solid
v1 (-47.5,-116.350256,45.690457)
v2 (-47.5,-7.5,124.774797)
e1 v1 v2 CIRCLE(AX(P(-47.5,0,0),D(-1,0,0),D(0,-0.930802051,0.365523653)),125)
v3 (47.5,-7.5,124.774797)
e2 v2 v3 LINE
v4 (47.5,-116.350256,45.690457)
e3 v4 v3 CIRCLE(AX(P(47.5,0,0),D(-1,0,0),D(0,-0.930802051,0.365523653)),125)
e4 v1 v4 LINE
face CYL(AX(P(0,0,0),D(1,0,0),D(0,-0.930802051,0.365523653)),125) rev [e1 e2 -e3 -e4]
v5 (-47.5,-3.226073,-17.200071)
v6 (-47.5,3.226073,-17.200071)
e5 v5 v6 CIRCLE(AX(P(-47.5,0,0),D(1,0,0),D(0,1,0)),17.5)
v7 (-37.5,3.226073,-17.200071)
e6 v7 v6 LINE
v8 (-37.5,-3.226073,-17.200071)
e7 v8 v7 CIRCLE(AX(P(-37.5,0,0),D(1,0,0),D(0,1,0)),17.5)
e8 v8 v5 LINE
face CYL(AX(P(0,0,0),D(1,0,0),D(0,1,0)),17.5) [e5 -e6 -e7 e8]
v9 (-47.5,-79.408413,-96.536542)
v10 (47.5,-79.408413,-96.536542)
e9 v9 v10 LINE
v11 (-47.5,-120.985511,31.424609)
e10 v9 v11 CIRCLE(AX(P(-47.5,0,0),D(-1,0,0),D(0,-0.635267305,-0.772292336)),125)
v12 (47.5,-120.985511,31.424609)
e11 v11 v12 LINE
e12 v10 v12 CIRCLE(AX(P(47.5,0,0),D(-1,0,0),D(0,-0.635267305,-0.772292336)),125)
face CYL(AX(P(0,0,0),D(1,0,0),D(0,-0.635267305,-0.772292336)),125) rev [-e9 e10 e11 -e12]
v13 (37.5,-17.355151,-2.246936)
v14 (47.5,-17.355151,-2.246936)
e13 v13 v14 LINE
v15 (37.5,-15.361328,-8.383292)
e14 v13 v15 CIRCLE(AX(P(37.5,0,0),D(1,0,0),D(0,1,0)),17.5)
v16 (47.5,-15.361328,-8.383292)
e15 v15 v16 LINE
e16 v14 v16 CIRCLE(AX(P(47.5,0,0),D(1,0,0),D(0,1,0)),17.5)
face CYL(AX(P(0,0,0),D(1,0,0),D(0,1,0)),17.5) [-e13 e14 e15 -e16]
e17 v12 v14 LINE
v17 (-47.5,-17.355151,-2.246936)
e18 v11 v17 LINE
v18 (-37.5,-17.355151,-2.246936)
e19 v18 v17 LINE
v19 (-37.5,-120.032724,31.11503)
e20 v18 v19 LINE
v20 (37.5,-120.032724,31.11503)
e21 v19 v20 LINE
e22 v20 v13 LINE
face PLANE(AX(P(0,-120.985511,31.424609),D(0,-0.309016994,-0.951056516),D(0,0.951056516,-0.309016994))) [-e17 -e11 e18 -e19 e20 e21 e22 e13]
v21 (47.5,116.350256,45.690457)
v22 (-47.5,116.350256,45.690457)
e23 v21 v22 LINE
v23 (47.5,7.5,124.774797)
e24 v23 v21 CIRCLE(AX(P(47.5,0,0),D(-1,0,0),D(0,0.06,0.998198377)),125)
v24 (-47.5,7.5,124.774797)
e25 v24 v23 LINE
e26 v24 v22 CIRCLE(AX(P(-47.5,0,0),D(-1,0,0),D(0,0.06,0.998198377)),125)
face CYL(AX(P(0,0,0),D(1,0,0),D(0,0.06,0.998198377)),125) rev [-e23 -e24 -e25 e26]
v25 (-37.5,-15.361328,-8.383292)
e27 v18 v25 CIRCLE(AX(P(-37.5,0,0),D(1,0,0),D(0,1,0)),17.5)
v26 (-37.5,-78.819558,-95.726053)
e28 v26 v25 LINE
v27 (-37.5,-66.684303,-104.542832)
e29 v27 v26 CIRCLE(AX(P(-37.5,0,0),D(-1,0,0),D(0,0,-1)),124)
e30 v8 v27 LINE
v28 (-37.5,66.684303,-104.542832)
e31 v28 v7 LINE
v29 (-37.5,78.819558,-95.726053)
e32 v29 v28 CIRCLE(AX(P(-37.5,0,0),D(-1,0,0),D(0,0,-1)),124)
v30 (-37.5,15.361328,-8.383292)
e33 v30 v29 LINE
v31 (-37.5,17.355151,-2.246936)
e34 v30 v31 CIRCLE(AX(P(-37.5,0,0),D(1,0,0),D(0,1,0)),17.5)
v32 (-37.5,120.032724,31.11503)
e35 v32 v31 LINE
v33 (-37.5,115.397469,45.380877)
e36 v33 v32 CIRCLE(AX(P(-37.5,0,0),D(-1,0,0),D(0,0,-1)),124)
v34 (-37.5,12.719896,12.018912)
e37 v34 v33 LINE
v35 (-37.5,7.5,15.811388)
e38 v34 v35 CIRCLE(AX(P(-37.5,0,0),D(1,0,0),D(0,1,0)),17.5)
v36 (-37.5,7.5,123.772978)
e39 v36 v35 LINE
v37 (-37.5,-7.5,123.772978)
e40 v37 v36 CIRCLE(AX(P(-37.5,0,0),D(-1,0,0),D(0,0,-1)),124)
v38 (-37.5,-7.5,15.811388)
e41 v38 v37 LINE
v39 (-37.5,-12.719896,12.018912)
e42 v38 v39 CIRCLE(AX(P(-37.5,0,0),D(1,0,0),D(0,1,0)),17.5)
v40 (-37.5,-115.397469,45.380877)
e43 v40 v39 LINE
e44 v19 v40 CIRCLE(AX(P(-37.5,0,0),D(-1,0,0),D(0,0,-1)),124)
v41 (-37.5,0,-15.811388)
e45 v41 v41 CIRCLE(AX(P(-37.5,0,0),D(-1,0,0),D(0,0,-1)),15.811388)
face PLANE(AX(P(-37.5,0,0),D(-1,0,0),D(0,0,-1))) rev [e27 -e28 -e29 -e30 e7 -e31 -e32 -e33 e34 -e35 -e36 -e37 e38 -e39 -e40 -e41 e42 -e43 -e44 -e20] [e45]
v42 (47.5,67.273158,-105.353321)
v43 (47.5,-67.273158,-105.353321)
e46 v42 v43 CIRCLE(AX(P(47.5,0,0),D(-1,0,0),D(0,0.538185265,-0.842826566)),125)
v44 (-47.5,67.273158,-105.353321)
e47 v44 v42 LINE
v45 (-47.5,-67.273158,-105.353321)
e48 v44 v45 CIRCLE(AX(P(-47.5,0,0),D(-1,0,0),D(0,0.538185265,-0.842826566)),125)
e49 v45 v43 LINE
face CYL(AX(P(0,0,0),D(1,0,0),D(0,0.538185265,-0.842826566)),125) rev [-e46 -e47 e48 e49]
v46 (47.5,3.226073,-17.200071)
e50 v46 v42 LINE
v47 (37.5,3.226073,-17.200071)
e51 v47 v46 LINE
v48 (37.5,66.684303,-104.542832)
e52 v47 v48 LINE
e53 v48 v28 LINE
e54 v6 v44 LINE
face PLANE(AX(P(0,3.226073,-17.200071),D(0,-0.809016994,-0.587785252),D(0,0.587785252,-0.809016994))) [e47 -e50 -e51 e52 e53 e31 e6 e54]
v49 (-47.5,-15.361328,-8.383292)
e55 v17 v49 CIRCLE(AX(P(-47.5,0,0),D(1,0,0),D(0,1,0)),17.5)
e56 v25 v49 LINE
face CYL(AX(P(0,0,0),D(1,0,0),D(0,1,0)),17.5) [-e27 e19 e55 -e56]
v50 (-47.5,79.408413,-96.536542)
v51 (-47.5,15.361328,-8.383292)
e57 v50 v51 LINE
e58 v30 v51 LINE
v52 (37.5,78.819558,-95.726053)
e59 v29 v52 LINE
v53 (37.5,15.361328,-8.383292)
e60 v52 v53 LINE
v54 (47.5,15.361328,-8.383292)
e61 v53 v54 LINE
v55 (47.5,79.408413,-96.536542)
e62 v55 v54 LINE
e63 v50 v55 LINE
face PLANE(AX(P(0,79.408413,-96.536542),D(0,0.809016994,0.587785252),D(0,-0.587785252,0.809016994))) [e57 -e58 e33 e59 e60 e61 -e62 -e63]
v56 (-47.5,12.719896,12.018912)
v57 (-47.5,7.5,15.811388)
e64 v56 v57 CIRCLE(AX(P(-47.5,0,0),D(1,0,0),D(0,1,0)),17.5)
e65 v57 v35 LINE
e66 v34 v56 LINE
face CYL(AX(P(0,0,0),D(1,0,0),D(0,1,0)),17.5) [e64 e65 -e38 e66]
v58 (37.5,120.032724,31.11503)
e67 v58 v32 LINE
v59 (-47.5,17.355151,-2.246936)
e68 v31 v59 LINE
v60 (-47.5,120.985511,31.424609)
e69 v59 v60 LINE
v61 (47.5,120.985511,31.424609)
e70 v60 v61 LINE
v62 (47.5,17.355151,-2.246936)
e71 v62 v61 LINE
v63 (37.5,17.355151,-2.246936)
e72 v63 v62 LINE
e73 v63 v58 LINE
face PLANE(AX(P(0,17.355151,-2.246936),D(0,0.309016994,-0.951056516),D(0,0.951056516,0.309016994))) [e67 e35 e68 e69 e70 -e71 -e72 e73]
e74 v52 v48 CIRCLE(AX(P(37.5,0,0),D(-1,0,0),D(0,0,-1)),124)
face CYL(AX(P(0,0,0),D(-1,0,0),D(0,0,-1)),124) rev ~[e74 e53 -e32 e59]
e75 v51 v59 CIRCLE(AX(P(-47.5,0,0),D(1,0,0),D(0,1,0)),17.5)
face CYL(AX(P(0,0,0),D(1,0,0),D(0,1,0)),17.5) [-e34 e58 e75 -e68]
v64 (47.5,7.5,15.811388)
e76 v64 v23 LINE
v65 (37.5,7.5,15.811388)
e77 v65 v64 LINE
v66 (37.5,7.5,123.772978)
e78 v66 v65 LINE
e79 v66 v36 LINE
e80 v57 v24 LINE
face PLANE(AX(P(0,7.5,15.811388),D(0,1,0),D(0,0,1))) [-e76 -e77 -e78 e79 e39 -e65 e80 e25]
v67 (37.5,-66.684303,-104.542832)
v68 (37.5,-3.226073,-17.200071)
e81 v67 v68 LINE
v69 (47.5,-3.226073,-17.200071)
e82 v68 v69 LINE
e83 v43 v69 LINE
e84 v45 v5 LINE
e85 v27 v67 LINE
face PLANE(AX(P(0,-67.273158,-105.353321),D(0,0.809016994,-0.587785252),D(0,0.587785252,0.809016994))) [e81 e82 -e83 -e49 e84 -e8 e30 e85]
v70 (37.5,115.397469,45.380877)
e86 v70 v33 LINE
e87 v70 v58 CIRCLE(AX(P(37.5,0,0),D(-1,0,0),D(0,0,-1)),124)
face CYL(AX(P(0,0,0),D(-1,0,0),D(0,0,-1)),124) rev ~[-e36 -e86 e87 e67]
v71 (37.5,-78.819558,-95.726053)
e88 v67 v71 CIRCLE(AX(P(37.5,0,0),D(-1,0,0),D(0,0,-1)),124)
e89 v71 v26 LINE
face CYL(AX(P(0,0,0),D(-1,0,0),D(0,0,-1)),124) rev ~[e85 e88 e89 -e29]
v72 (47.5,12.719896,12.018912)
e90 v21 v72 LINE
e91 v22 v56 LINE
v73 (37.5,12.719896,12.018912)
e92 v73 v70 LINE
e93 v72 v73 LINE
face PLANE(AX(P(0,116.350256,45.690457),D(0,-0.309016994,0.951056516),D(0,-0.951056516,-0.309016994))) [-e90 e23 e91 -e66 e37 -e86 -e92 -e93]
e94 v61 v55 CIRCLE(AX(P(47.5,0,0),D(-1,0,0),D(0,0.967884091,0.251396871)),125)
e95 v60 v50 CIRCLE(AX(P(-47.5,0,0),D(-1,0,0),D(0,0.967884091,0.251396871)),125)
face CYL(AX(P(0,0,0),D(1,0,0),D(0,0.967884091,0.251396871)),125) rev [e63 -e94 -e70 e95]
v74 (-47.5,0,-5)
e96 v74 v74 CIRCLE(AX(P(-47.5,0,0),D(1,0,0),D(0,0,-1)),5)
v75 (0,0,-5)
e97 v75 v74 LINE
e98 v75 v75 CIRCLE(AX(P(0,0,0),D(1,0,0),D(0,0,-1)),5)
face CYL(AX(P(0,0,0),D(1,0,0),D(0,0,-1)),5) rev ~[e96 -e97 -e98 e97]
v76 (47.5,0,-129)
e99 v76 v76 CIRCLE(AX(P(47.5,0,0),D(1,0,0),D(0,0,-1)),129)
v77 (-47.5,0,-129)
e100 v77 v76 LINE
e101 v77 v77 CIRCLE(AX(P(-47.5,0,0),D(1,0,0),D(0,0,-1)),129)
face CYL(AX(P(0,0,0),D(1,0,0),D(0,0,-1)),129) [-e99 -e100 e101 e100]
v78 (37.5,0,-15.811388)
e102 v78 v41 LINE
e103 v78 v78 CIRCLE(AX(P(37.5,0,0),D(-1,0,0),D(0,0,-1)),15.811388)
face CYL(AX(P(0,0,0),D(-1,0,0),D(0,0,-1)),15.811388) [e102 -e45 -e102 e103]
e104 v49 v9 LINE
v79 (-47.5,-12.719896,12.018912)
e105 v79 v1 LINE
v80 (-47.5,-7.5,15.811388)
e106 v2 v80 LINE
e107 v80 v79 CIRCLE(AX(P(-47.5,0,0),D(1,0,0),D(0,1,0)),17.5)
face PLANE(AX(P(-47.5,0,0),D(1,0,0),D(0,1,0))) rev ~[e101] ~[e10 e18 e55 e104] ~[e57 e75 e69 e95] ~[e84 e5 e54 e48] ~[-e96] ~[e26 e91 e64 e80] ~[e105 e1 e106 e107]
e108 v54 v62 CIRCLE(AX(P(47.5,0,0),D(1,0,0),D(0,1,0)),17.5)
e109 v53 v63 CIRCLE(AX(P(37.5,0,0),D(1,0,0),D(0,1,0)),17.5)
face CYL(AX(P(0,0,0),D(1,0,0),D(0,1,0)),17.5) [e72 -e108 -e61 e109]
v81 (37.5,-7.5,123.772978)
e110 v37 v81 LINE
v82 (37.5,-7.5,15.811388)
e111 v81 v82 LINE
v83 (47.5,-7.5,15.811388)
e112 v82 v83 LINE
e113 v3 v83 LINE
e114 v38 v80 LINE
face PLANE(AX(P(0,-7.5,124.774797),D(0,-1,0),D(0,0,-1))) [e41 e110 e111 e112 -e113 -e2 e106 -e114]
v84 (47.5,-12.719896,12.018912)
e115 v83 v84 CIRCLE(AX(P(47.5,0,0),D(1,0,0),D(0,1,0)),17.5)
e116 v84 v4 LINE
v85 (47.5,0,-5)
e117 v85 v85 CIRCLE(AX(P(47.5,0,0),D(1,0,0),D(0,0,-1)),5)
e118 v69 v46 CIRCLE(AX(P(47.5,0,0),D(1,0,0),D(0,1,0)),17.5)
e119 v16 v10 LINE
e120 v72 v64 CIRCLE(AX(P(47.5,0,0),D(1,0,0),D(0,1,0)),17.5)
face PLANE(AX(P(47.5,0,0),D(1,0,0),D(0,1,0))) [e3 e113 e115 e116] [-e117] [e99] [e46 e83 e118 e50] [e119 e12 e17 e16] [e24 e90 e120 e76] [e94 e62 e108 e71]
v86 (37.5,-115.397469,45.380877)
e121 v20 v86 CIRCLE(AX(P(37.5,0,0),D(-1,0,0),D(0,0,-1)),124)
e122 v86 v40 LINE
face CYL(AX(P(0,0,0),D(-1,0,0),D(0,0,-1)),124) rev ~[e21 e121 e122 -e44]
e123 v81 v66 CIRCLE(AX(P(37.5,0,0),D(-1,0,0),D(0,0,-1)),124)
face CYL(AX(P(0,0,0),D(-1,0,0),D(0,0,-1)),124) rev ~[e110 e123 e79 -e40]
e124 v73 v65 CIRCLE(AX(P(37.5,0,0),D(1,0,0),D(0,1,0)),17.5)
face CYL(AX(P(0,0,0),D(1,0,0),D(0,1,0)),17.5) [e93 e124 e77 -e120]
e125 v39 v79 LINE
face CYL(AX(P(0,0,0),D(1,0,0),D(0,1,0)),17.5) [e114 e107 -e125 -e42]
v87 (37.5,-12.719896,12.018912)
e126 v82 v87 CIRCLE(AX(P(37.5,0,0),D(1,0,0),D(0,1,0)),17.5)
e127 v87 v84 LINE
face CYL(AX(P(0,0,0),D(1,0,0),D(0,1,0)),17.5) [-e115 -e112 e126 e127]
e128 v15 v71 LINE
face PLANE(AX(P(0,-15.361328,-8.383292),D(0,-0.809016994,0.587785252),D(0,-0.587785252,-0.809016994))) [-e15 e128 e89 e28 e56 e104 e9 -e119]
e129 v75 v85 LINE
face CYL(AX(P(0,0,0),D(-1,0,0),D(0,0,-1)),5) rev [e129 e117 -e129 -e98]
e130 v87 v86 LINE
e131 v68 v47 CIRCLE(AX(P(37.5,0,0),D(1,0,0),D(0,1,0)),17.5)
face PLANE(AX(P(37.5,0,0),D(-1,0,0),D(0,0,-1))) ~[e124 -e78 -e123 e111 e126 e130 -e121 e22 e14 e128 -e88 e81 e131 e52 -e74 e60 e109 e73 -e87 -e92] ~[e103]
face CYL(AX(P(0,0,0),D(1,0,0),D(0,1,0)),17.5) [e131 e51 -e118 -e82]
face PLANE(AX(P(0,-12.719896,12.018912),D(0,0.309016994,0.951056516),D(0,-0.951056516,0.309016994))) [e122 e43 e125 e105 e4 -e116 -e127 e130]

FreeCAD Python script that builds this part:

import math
import FreeCAD as App
import Part
import Sketcher
Q = App.Units.Quantity

doc = App.newDocument("Part")
body = doc.addObject("PartDesign::Body", "Body")

sketch1 = doc.addObject("Sketcher::SketchObject", "Sketch")
body.addObject(sketch1)
sketch1.AttachmentSupport = (doc.YZ_Plane, [""])
sketch1.MapMode = "FlatFace"
sketch1.addGeometry([
    Part.Circle(App.Vector(0, 0, 0), App.Vector(0, 0, 1), 129),
    Part.ArcOfCircle(Part.Circle(App.Vector(0, 0, 0), App.Vector(0, 0, 1), 125), math.radians(93.439813), math.radians(158.560187)),
    Part.LineSegment(App.Vector(-7.5, 124.774797, 0), App.Vector(-7.5, 15.811388, 0)),
    Part.ArcOfCircle(Part.Circle(App.Vector(0, 0, 0), App.Vector(0, 0, 1), 17.5), math.radians(115.376934), math.radians(136.623066)),
    Part.LineSegment(App.Vector(-12.719896, 12.018912, 0), App.Vector(-116.350256, 45.690457, 0)),
    Part.LineSegment(App.Vector(-120.985511, 31.424609, 0), App.Vector(-17.355151, -2.246936, 0)),
    Part.ArcOfCircle(Part.Circle(App.Vector(0, 0, 0), App.Vector(0, 0, 1), 17.5), math.radians(-172.623066), math.radians(-151.376934)),
    Part.LineSegment(App.Vector(-15.361328, -8.383292, 0), App.Vector(-79.408413, -96.536542, 0)),
    Part.ArcOfCircle(Part.Circle(App.Vector(0, 0, 0), App.Vector(0, 0, 1), 125), math.radians(165.439813), math.radians(230.560187)),
    Part.LineSegment(App.Vector(-67.273158, -105.353321, 0), App.Vector(-3.226073, -17.200071, 0)),
    Part.ArcOfCircle(Part.Circle(App.Vector(0, 0, 0), App.Vector(0, 0, 1), 17.5), math.radians(-100.623066), math.radians(-79.376934)),
    Part.LineSegment(App.Vector(3.226073, -17.200071, 0), App.Vector(67.273158, -105.353321, 0)),
    Part.ArcOfCircle(Part.Circle(App.Vector(0, 0, 0), App.Vector(0, 0, 1), 125), math.radians(-122.560187), math.radians(-57.439813)),
    Part.LineSegment(App.Vector(79.408413, -96.536542, 0), App.Vector(15.361328, -8.383292, 0)),
    Part.ArcOfCircle(Part.Circle(App.Vector(0, 0, 0), App.Vector(0, 0, 1), 17.5), math.radians(-28.623066), math.radians(-7.376934)),
    Part.LineSegment(App.Vector(17.355151, -2.246936, 0), App.Vector(120.985511, 31.424609, 0)),
    Part.ArcOfCircle(Part.Circle(App.Vector(0, 0, 0), App.Vector(0, 0, 1), 125), math.radians(-50.560187), math.radians(14.560187)),
    Part.LineSegment(App.Vector(116.350256, 45.690457, 0), App.Vector(12.719896, 12.018912, 0)),
    Part.ArcOfCircle(Part.Circle(App.Vector(0, 0, 0), App.Vector(0, 0, 1), 17.5), math.radians(43.376934), math.radians(64.623066)),
    Part.LineSegment(App.Vector(7.5, 15.811388, 0), App.Vector(7.5, 124.774797, 0)),
    Part.ArcOfCircle(Part.Circle(App.Vector(0, 0, 0), App.Vector(0, 0, 1), 125), math.radians(21.439813), math.radians(86.560187)),
    Part.Circle(App.Vector(0, 0, 0), App.Vector(0, 0, 1), 5),
], False)
sketch1.addConstraint([
    Sketcher.Constraint("Coincident", 1, 1, 2, 1),
    Sketcher.Constraint("Coincident", 2, 2, 3, 1),
    Sketcher.Constraint("Coincident", 3, 2, 4, 1),
    Sketcher.Constraint("Coincident", 4, 2, 1, 2),
    Sketcher.Constraint("Coincident", 5, 2, 6, 1),
    Sketcher.Constraint("Coincident", 6, 2, 7, 1),
    Sketcher.Constraint("Coincident", 7, 2, 8, 2),
    Sketcher.Constraint("Coincident", 8, 1, 5, 1),
    Sketcher.Constraint("Coincident", 9, 2, 10, 1),
    Sketcher.Constraint("Coincident", 10, 2, 11, 1),
    Sketcher.Constraint("Coincident", 11, 2, 12, 2),
    Sketcher.Constraint("Coincident", 12, 1, 9, 1),
    Sketcher.Constraint("Coincident", 13, 2, 14, 1),
    Sketcher.Constraint("Coincident", 14, 2, 15, 1),
    Sketcher.Constraint("Coincident", 15, 2, 16, 2),
    Sketcher.Constraint("Coincident", 16, 1, 13, 1),
    Sketcher.Constraint("Coincident", 17, 2, 18, 1),
    Sketcher.Constraint("Coincident", 18, 2, 19, 1),
    Sketcher.Constraint("Coincident", 19, 2, 20, 2),
    Sketcher.Constraint("Coincident", 20, 1, 17, 1),
    Sketcher.Constraint("Vertical", 2),
    Sketcher.Constraint("Vertical", 19),
    Sketcher.Constraint("Coincident", 0, 3, -1, 1),
    Sketcher.Constraint("Coincident", 1, 3, -1, 1),
    Sketcher.Constraint("Coincident", 3, 3, -1, 1),
    Sketcher.Constraint("Coincident", 6, 3, -1, 1),
    Sketcher.Constraint("Coincident", 8, 3, -1, 1),
    Sketcher.Constraint("Coincident", 10, 3, -1, 1),
    Sketcher.Constraint("Coincident", 12, 3, -1, 1),
    Sketcher.Constraint("Coincident", 14, 3, -1, 1),
    Sketcher.Constraint("Coincident", 16, 3, -1, 1),
    Sketcher.Constraint("Coincident", 18, 3, -1, 1),
    Sketcher.Constraint("Coincident", 20, 3, -1, 1),
    Sketcher.Constraint("Coincident", 21, 3, -1, 1),
    Sketcher.Constraint("Equal", 3, 6),
    Sketcher.Constraint("Equal", 1, 8),
    Sketcher.Constraint("Equal", 6, 10),
    Sketcher.Constraint("Equal", 8, 12),
    Sketcher.Constraint("Equal", 10, 14),
    Sketcher.Constraint("Equal", 12, 16),
    Sketcher.Constraint("Equal", 14, 18),
    Sketcher.Constraint("Equal", 16, 20),
    Sketcher.Constraint("Parallel", 4, 5),
    Sketcher.Constraint("Parallel", 7, 9),
    Sketcher.Constraint("Parallel", 11, 13),
    Sketcher.Constraint("Parallel", 15, 17),
    Sketcher.Constraint("Horizontal", 9, 2, 10, 2),
    Sketcher.Constraint("Horizontal", 11, 2, 12, 1),
    Sketcher.Constraint("Horizontal", 6, 2, 13, 2),
    Sketcher.Constraint("Horizontal", 5, 2, 14, 2),
    Sketcher.Constraint("Horizontal", 8, 1, 15, 2),
    Sketcher.Constraint("Horizontal", 3, 2, 17, 2),
    Sketcher.Constraint("Horizontal", 2, 2, 18, 2),
    Sketcher.Constraint("Equal", 4, 5),
    Sketcher.Constraint("Equal", 5, 7),
    Sketcher.Constraint("Equal", 7, 9),
    Sketcher.Constraint("Diameter", 0, Q("258 mm")),
    Sketcher.Constraint("Diameter", 21, Q("10 mm")),
    Sketcher.Constraint("Radius", 1, Q("125 mm")),
    Sketcher.Constraint("Radius", 3, Q("17.5 mm")),
    Sketcher.Constraint("Angle", 4, Q("162 deg")),
    Sketcher.Constraint("Angle", 7, Q("-126 deg")),
    Sketcher.Constraint("DistanceX", 2, 2, 18, 2, Q("15 mm")),
    Sketcher.Constraint("DistanceY", 6, 2, 8, 1, Q("39.807901 mm")),
])
pad1 = doc.addObject("PartDesign::Pad", "Pad")
body.addObject(pad1)
pad1.Profile = sketch1
pad1.Length = 95
pad1.Midplane = True

sketch2 = doc.addObject("Sketcher::SketchObject", "Sketch001")
body.addObject(sketch2)
sketch2.AttachmentSupport = (doc.XZ_Plane, [""])
sketch2.MapMode = "FlatFace"
sketch2.addGeometry([
    Part.LineSegment(App.Vector(37.5, 124, 0), App.Vector(37.5, 15.811388, 0)),
    Part.LineSegment(App.Vector(37.5, 15.811388, 0), App.Vector(-37.5, 15.811388, 0)),
    Part.LineSegment(App.Vector(-37.5, 15.811388, 0), App.Vector(-37.5, 124, 0)),
    Part.LineSegment(App.Vector(-37.5, 124, 0), App.Vector(37.5, 124, 0)),
], False)
sketch2.addConstraint([
    Sketcher.Constraint("Coincident", 0, 2, 1, 1),
    Sketcher.Constraint("Coincident", 1, 2, 2, 1),
    Sketcher.Constraint("Coincident", 2, 2, 3, 1),
    Sketcher.Constraint("Coincident", 3, 2, 0, 1),
    Sketcher.Constraint("Vertical", 0),
    Sketcher.Constraint("Horizontal", 1),
    Sketcher.Constraint("Vertical", 2),
    Sketcher.Constraint("Horizontal", 3),
    Sketcher.Constraint("DistanceX", 1, 2, 1, 1, Q("75 mm")),
    Sketcher.Constraint("DistanceY", -1, 1, 2, 2, Q("124 mm")),
    Sketcher.Constraint("DistanceX", -1, 1, 0, 2, Q("37.5 mm")),
    Sketcher.Constraint("DistanceY", 0, 2, 0, 1, Q("108.188612 mm")),
])
groove = doc.addObject("PartDesign::Groove", "Groove")
body.addObject(groove)
groove.Profile = sketch2
groove.ReferenceAxis = (sketch2, ["H_Axis"])
groove.Angle = 360

doc.recompute()
